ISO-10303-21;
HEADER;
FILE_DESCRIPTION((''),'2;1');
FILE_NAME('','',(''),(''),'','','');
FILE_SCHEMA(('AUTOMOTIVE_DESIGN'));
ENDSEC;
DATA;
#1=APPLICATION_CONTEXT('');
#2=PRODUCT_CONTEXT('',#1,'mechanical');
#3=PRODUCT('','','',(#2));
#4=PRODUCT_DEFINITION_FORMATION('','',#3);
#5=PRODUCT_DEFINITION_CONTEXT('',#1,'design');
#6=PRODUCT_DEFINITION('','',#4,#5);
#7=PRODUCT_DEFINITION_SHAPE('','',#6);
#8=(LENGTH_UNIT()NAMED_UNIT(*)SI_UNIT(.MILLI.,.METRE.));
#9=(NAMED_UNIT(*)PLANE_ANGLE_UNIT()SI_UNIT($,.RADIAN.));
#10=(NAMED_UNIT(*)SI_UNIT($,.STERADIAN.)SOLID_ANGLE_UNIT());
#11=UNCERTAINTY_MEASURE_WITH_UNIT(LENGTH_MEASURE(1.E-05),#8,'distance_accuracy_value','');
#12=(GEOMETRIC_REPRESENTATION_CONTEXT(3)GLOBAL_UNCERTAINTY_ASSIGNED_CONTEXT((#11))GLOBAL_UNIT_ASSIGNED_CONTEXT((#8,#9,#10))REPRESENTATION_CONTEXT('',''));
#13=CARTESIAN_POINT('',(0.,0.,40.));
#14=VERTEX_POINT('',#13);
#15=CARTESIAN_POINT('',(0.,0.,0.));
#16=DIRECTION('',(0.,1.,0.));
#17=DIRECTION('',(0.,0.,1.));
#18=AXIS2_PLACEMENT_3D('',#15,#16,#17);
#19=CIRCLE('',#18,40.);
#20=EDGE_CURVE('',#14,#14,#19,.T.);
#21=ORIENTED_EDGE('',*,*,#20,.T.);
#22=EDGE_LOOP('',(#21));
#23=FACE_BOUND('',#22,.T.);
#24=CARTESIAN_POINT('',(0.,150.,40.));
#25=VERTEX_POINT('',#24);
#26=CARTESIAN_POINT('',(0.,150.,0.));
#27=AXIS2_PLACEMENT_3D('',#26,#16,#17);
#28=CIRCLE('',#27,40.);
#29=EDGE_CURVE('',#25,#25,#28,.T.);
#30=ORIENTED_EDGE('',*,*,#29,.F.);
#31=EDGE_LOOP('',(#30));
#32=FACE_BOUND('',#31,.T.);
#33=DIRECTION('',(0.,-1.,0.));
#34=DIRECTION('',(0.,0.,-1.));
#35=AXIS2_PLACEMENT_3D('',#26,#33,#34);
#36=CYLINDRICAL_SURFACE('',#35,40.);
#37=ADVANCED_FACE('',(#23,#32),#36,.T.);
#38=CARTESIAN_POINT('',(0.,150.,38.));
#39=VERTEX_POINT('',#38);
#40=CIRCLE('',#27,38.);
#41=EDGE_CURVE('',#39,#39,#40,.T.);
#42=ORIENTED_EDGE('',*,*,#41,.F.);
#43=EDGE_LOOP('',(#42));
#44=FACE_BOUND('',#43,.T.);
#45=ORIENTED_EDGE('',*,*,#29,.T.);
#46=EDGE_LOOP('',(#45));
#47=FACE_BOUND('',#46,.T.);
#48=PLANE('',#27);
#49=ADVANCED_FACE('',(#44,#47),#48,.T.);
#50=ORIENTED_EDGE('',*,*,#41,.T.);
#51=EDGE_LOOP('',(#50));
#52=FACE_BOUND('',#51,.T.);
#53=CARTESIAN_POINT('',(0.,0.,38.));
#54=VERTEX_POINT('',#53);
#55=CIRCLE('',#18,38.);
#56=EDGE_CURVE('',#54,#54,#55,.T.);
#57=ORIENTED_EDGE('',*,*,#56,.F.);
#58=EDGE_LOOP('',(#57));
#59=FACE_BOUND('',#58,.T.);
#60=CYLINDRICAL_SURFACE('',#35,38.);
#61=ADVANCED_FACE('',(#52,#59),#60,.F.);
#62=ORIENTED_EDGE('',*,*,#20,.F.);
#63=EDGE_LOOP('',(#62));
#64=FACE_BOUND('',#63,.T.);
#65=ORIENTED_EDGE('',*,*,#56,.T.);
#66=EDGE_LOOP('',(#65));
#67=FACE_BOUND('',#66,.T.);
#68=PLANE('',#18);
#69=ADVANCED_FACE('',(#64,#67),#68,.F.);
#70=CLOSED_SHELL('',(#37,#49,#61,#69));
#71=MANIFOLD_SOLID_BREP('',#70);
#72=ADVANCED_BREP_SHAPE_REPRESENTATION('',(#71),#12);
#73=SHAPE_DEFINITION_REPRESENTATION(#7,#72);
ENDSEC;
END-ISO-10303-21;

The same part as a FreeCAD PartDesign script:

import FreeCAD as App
import Part
import Sketcher
from FreeCAD import Vector
Q = App.Units.Quantity

doc = App.newDocument("Part")
body = doc.addObject("PartDesign::Body", "Body")

sketch1 = doc.addObject("Sketcher::SketchObject", "Sketch")
body.addObject(sketch1)
sketch1.AttachmentSupport = (doc.XZ_Plane, [""])
sketch1.MapMode = "FlatFace"
sketch1.addGeometry([
    Part.Circle(Vector(0, 0, 0), Vector(0, 0, 1), 40),
    Part.Circle(Vector(0, 0, 0), Vector(0, 0, 1), 38),
], False)
sketch1.addConstraint([
    Sketcher.Constraint("Coincident", 0, 3, -1, 1),
    Sketcher.Constraint("Coincident", 1, 3, -1, 1),
    Sketcher.Constraint("Diameter", 0, Q("80 mm")),
    Sketcher.Constraint("Diameter", 1, Q("76 mm")),
])
pad1 = doc.addObject("PartDesign::Pad", "Pad")
body.addObject(pad1)
pad1.Profile = sketch1
pad1.Length = 150
pad1.Reversed = True

doc.recompute()
